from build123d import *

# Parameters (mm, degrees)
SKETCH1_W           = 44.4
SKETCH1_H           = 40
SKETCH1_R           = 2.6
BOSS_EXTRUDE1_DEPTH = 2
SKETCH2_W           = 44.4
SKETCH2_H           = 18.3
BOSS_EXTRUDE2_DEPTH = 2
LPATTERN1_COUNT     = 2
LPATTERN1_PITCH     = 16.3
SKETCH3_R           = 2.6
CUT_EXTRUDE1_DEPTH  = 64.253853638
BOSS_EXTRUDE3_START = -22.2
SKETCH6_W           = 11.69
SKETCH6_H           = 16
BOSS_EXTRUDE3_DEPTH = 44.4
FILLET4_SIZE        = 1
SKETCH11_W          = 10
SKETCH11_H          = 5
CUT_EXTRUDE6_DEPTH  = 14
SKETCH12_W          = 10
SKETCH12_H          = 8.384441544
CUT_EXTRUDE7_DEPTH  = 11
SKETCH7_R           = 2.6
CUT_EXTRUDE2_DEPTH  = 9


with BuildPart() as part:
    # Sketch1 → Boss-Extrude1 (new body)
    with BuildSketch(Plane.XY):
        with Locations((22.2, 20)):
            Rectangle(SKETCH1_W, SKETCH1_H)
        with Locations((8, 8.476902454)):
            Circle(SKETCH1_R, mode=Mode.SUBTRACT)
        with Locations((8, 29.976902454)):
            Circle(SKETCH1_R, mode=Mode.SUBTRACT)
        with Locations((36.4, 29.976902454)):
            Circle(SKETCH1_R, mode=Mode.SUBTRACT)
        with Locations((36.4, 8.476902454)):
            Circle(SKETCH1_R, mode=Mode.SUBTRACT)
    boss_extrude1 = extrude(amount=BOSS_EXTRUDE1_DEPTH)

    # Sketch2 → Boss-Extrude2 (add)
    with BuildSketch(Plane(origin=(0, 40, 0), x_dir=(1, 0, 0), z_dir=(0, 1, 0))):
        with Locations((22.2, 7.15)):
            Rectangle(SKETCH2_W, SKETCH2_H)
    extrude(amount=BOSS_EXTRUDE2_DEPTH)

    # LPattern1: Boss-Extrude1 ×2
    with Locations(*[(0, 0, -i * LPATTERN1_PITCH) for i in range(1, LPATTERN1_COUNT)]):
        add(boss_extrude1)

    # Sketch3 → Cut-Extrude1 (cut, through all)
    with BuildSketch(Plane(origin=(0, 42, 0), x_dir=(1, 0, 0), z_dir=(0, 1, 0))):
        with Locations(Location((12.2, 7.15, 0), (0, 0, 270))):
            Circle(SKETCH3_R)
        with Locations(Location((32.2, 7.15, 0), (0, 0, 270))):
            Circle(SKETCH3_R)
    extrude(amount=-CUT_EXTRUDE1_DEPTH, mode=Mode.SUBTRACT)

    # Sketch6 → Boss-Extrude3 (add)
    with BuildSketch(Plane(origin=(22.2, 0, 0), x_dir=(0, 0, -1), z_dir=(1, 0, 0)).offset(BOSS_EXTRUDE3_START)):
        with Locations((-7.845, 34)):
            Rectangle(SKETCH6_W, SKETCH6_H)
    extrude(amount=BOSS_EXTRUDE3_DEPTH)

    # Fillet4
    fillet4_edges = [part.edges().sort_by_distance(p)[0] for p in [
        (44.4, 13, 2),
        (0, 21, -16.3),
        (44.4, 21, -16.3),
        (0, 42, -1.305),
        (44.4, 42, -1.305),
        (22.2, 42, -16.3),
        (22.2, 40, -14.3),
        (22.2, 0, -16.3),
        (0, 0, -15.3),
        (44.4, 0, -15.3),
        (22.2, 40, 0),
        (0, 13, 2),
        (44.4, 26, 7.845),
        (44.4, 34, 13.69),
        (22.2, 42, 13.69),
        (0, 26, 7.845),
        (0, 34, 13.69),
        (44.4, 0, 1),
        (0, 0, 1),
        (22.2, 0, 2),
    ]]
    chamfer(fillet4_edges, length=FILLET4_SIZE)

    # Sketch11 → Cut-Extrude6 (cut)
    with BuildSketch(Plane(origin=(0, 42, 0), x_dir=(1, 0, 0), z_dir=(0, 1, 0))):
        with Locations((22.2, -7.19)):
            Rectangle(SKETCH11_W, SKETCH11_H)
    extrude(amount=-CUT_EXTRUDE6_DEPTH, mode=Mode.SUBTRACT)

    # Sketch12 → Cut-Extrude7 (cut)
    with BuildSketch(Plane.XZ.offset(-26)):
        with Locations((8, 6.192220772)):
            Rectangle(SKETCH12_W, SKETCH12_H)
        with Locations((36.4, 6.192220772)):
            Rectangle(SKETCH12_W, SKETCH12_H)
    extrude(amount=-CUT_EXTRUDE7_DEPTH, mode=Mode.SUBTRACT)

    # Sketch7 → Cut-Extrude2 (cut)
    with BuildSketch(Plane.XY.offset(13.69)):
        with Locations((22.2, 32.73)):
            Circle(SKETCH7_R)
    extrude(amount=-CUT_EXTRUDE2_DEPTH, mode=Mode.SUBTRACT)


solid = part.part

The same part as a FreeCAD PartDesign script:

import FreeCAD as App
import Part
import Sketcher


def edges_at(feature, points):
    """Names of the edges that pass closest to the given points."""
    edges = feature.Shape.Edges
    near = lambda p: min(range(len(edges)), key=lambda i: edges[i].distToShape(Part.Vertex(*p))[0])
    return sorted({f"Edge{near(p) + 1}" for p in points})

doc = App.newDocument("Part")
body = doc.addObject("PartDesign::Body", "Body")

sketch1 = body.newObject("Sketcher::SketchObject", "Sketch")
sketch1.AttachmentSupport = (doc.getObject("XY_Plane"), [""])
sketch1.MapMode = "FlatFace"
sketch1.addGeometry([
    Part.LineSegment(App.Vector(0, 40, 0), App.Vector(0, 0, 0)),
    Part.LineSegment(App.Vector(0, 0, 0), App.Vector(44.4, 0, 0)),
    Part.LineSegment(App.Vector(44.4, 0, 0), App.Vector(44.4, 40, 0)),
    Part.LineSegment(App.Vector(44.4, 40, 0), App.Vector(0, 40, 0)),
    Part.Circle(App.Vector(8, 8.5, 0), App.Vector(0, 0, 1), 2.6),
    Part.Circle(App.Vector(36.4, 8.5, 0), App.Vector(0, 0, 1), 2.6),
    Part.Circle(App.Vector(8, 30, 0), App.Vector(0, 0, 1), 2.6),
    Part.Circle(App.Vector(36.4, 30, 0), App.Vector(0, 0, 1), 2.6),
], False)
sketch1.addConstraint([
    Sketcher.Constraint("Coincident", 0, 2, 1, 1),
    Sketcher.Constraint("Coincident", 1, 2, 2, 1),
    Sketcher.Constraint("Coincident", 2, 2, 3, 1),
    Sketcher.Constraint("Coincident", 3, 2, 0, 1),
    Sketcher.Constraint("Vertical", 0),
    Sketcher.Constraint("Horizontal", 1),
    Sketcher.Constraint("Vertical", 2),
    Sketcher.Constraint("Horizontal", 3),
    Sketcher.Constraint("Coincident", 0, 2, -1, 1),
    Sketcher.Constraint("Equal", 4, 5),
    Sketcher.Constraint("Equal", 5, 6),
    Sketcher.Constraint("Equal", 6, 7),
    Sketcher.Constraint("Horizontal", 4, 3, 5, 3),
    Sketcher.Constraint("Horizontal", 6, 3, 7, 3),
    Sketcher.Constraint("Vertical", 4, 3, 6, 3),
    Sketcher.Constraint("Vertical", 5, 3, 7, 3),
    Sketcher.Constraint("Diameter", 4, 5.2),
    Sketcher.Constraint("DistanceY", 0, 2, 0, 1, 40.0),
    Sketcher.Constraint("DistanceX", 1, 1, 1, 2, 44.4),
    Sketcher.Constraint("DistanceX", -1, 1, 4, 3, 8.0),
    Sketcher.Constraint("DistanceX", 5, 3, 1, 2, 8.0),
    Sketcher.Constraint("DistanceY", 4, 3, 6, 3, 21.5),
    Sketcher.Constraint("DistanceY", -1, 1, 4, 3, 8.476902),
])
pad1 = body.newObject("PartDesign::Pad", "Pad")
pad1.Profile = sketch1
pad1.Length = 2

sketch2 = body.newObject("Sketcher::SketchObject", "Sketch001")
sketch2.AttachmentSupport = (doc.getObject("XZ_Plane"), [""])
sketch2.MapMode = "FlatFace"
sketch2.AttachmentOffset = App.Placement(App.Vector(0, 0, -40), App.Rotation())
sketch2.addGeometry([
    Part.LineSegment(App.Vector(0, -16, 0), App.Vector(0, 2, 0)),
    Part.LineSegment(App.Vector(0, 2, 0), App.Vector(44, 2, 0)),
    Part.LineSegment(App.Vector(44, 2, 0), App.Vector(44, -16, 0)),
    Part.LineSegment(App.Vector(44, -16, 0), App.Vector(0, -16, 0)),
], False)
sketch2.addConstraint([
    Sketcher.Constraint("Coincident", 0, 2, 1, 1),
    Sketcher.Constraint("Coincident", 1, 2, 2, 1),
    Sketcher.Constraint("Coincident", 2, 2, 3, 1),
    Sketcher.Constraint("Coincident", 3, 2, 0, 1),
    Sketcher.Constraint("Vertical", 0),
    Sketcher.Constraint("Horizontal", 1),
    Sketcher.Constraint("Vertical", 2),
    Sketcher.Constraint("Horizontal", 3),
    Sketcher.Constraint("PointOnObject", 0, 2, -2),
    Sketcher.Constraint("DistanceX", 1, 1, 1, 2, 44.4),
    Sketcher.Constraint("DistanceY", 0, 1, 0, 2, 18.3),
    Sketcher.Constraint("DistanceY", -1, 1, 0, 2, 2.0),
])
pad2 = body.newObject("PartDesign::Pad", "Pad001")
pad2.Profile = sketch2
pad2.Length = 2
pad2.Reversed = True
doc.recompute()

linearpattern = body.newObject("PartDesign::LinearPattern", "LinearPattern")
linearpattern.Originals = [pad1]
linearpattern.Direction = (doc.getObject("Z_Axis"), [""])
linearpattern.Mode = "offset"
linearpattern.Offset = 16.3
linearpattern.Occurrences = 2
linearpattern.Reversed = True
body.Tip = linearpattern

sketch3 = body.newObject("Sketcher::SketchObject", "Sketch002")
sketch3.AttachmentSupport = (doc.getObject("XZ_Plane"), [""])
sketch3.MapMode = "FlatFace"
sketch3.AttachmentOffset = App.Placement(App.Vector(0, 0, -42), App.Rotation())
sketch3.addGeometry([
    Part.Circle(App.Vector(12.2, -7.2, 0), App.Vector(0, 0, 1), 2.6),
    Part.Circle(App.Vector(32.2, -7.2, 0), App.Vector(0, 0, 1), 2.6),
], False)
sketch3.addConstraint([
    Sketcher.Constraint("Equal", 0, 1),
    Sketcher.Constraint("Horizontal", 0, 3, 1, 3),
    Sketcher.Constraint("Diameter", 0, 5.2),
    Sketcher.Constraint("DistanceX", 0, 3, 1, 3, 20.0),
    Sketcher.Constraint("DistanceX", -1, 1, 0, 3, 12.2),
    Sketcher.Constraint("DistanceY", 0, 3, -1, 1, 7.15),
])
pocket1 = body.newObject("PartDesign::Pocket", "Pocket")
pocket1.Profile = sketch3
pocket1.Type = "ThroughAll"
pocket1.Reversed = True

sketch4 = body.newObject("Sketcher::SketchObject", "Sketch003")
sketch4.AttachmentSupport = (doc.getObject("YZ_Plane"), [""])
sketch4.MapMode = "FlatFace"
sketch4.addGeometry([
    Part.LineSegment(App.Vector(42, 14, 0), App.Vector(26, 14, 0)),
    Part.LineSegment(App.Vector(26, 14, 0), App.Vector(26, 2, 0)),
    Part.LineSegment(App.Vector(26, 2, 0), App.Vector(42, 2, 0)),
    Part.LineSegment(App.Vector(42, 2, 0), App.Vector(42, 14, 0)),
], False)
sketch4.addConstraint([
    Sketcher.Constraint("Coincident", 0, 2, 1, 1),
    Sketcher.Constraint("Coincident", 1, 2, 2, 1),
    Sketcher.Constraint("Coincident", 2, 2, 3, 1),
    Sketcher.Constraint("Coincident", 3, 2, 0, 1),
    Sketcher.Constraint("Horizontal", 0),
    Sketcher.Constraint("Vertical", 1),
    Sketcher.Constraint("Horizontal", 2),
    Sketcher.Constraint("Vertical", 3),
    Sketcher.Constraint("DistanceX", 0, 2, 0, 1, 16.0),
    Sketcher.Constraint("DistanceX", -1, 1, 0, 2, 26.0),
    Sketcher.Constraint("DistanceY", -1, 1, 1, 2, 2.0),
    Sketcher.Constraint("DistanceY", 1, 2, 1, 1, 11.69),
])
pad3 = body.newObject("PartDesign::Pad", "Pad002")
pad3.Profile = sketch4
pad3.Length = 44.4
doc.recompute()

chamfer = body.newObject("PartDesign::Chamfer", "Chamfer")
chamfer.Base = (pad3, edges_at(pad3, [
    (44.4, 13, 2),
    (0, 21, -16.3),
    (44.4, 21, -16.3),
    (0, 42, -1.305),
    (44.4, 42, -1.305),
    (22.2, 42, -16.3),
    (22.2, 40, -14.3),
    (22.2, 0, -16.3),
    (0, 0, -15.3),
    (44.4, 0, -15.3),
    (22.2, 40, 0),
    (0, 13, 2),
    (44.4, 26, 7.845),
    (44.4, 34, 13.69),
    (22.2, 42, 13.69),
    (0, 26, 7.845),
    (0, 34, 13.69),
    (44.4, 0, 1),
    (0, 0, 1),
    (22.2, 0, 2),
]))
chamfer.Size = 1

sketch5 = body.newObject("Sketcher::SketchObject", "Sketch004")
sketch5.AttachmentSupport = (doc.getObject("XZ_Plane"), [""])
sketch5.MapMode = "FlatFace"
sketch5.AttachmentOffset = App.Placement(App.Vector(0, 0, -42), App.Rotation())
sketch5.addGeometry([
    Part.LineSegment(App.Vector(17.2, 4.7, 0), App.Vector(17.2, 9.7, 0)),
    Part.LineSegment(App.Vector(17.2, 9.7, 0), App.Vector(27.2, 9.7, 0)),
    Part.LineSegment(App.Vector(27.2, 9.7, 0), App.Vector(27.2, 4.7, 0)),
    Part.LineSegment(App.Vector(27.2, 4.7, 0), App.Vector(17.2, 4.7, 0)),
], False)
sketch5.addConstraint([
    Sketcher.Constraint("Coincident", 0, 2, 1, 1),
    Sketcher.Constraint("Coincident", 1, 2, 2, 1),
    Sketcher.Constraint("Coincident", 2, 2, 3, 1),
    Sketcher.Constraint("Coincident", 3, 2, 0, 1),
    Sketcher.Constraint("Vertical", 0),
    Sketcher.Constraint("Horizontal", 1),
    Sketcher.Constraint("Vertical", 2),
    Sketcher.Constraint("Horizontal", 3),
    Sketcher.Constraint("DistanceX", 1, 1, 1, 2, 10.0),
    Sketcher.Constraint("DistanceY", 0, 1, 0, 2, 5.0),
    Sketcher.Constraint("DistanceX", -1, 1, 0, 2, 17.2),
    Sketcher.Constraint("DistanceY", -1, 1, 0, 2, 9.69),
])
pocket2 = body.newObject("PartDesign::Pocket", "Pocket001")
pocket2.Profile = sketch5
pocket2.Length = 14
pocket2.Reversed = True

sketch6 = body.newObject("Sketcher::SketchObject", "Sketch005")
sketch6.AttachmentSupport = (doc.getObject("XZ_Plane"), [""])
sketch6.MapMode = "FlatFace"
sketch6.AttachmentOffset = App.Placement(App.Vector(0, 0, -26), App.Rotation())
sketch6.addGeometry([
    Part.LineSegment(App.Vector(3, 10, 0), App.Vector(3, 2, 0)),
    Part.LineSegment(App.Vector(3, 2, 0), App.Vector(13, 2, 0)),
    Part.LineSegment(App.Vector(13, 2, 0), App.Vector(13, 10, 0)),
    Part.LineSegment(App.Vector(13, 10, 0), App.Vector(3, 10, 0)),
    Part.LineSegment(App.Vector(31, 10, 0), App.Vector(31, 2, 0)),
    Part.LineSegment(App.Vector(31, 2, 0), App.Vector(41, 2, 0)),
    Part.LineSegment(App.Vector(41, 2, 0), App.Vector(41, 10, 0)),
    Part.LineSegment(App.Vector(41, 10, 0), App.Vector(31, 10, 0)),
], False)
sketch6.addConstraint([
    Sketcher.Constraint("Coincident", 0, 2, 1, 1),
    Sketcher.Constraint("Coincident", 1, 2, 2, 1),
    Sketcher.Constraint("Coincident", 2, 2, 3, 1),
    Sketcher.Constraint("Coincident", 3, 2, 0, 1),
    Sketcher.Constraint("Coincident", 4, 2, 5, 1),
    Sketcher.Constraint("Coincident", 5, 2, 6, 1),
    Sketcher.Constraint("Coincident", 6, 2, 7, 1),
    Sketcher.Constraint("Coincident", 7, 2, 4, 1),
    Sketcher.Constraint("Vertical", 0),
    Sketcher.Constraint("Horizontal", 1),
    Sketcher.Constraint("Vertical", 2),
    Sketcher.Constraint("Horizontal", 3),
    Sketcher.Constraint("Vertical", 4),
    Sketcher.Constraint("Horizontal", 5),
    Sketcher.Constraint("Vertical", 6),
    Sketcher.Constraint("Horizontal", 7),
    Sketcher.Constraint("Horizontal", 1, 2, 4, 2),
    Sketcher.Constraint("Horizontal", 3, 2, 6, 2),
    Sketcher.Constraint("Equal", 3, 5),
    Sketcher.Constraint("DistanceX", 1, 1, 1, 2, 10.0),
    Sketcher.Constraint("DistanceX", -1, 1, 0, 2, 3.0),
    Sketcher.Constraint("DistanceY", -1, 1, 0, 2, 2.0),
    Sketcher.Constraint("DistanceX", -1, 1, 4, 2, 31.4),
    Sketcher.Constraint("DistanceY", 0, 2, 0, 1, 8.384442),
])
pocket3 = body.newObject("PartDesign::Pocket", "Pocket002")
pocket3.Profile = sketch6
pocket3.Length = 11

sketch7 = body.newObject("Sketcher::SketchObject", "Sketch006")
sketch7.AttachmentSupport = (doc.getObject("XY_Plane"), [""])
sketch7.MapMode = "FlatFace"
sketch7.AttachmentOffset = App.Placement(App.Vector(0, 0, 13.69), App.Rotation())
sketch7.addGeometry(Part.Circle(App.Vector(22.2, 32.7, 0), App.Vector(0, 0, 1), 2.6), False)
sketch7.addConstraint([
    Sketcher.Constraint("Diameter", 0, 5.2),
    Sketcher.Constraint("DistanceX", -1, 1, 0, 3, 22.2),
    Sketcher.Constraint("DistanceY", -1, 1, 0, 3, 32.73),
])
pocket4 = body.newObject("PartDesign::Pocket", "Pocket003")
pocket4.Profile = sketch7
pocket4.Length = 9

doc.recompute()
